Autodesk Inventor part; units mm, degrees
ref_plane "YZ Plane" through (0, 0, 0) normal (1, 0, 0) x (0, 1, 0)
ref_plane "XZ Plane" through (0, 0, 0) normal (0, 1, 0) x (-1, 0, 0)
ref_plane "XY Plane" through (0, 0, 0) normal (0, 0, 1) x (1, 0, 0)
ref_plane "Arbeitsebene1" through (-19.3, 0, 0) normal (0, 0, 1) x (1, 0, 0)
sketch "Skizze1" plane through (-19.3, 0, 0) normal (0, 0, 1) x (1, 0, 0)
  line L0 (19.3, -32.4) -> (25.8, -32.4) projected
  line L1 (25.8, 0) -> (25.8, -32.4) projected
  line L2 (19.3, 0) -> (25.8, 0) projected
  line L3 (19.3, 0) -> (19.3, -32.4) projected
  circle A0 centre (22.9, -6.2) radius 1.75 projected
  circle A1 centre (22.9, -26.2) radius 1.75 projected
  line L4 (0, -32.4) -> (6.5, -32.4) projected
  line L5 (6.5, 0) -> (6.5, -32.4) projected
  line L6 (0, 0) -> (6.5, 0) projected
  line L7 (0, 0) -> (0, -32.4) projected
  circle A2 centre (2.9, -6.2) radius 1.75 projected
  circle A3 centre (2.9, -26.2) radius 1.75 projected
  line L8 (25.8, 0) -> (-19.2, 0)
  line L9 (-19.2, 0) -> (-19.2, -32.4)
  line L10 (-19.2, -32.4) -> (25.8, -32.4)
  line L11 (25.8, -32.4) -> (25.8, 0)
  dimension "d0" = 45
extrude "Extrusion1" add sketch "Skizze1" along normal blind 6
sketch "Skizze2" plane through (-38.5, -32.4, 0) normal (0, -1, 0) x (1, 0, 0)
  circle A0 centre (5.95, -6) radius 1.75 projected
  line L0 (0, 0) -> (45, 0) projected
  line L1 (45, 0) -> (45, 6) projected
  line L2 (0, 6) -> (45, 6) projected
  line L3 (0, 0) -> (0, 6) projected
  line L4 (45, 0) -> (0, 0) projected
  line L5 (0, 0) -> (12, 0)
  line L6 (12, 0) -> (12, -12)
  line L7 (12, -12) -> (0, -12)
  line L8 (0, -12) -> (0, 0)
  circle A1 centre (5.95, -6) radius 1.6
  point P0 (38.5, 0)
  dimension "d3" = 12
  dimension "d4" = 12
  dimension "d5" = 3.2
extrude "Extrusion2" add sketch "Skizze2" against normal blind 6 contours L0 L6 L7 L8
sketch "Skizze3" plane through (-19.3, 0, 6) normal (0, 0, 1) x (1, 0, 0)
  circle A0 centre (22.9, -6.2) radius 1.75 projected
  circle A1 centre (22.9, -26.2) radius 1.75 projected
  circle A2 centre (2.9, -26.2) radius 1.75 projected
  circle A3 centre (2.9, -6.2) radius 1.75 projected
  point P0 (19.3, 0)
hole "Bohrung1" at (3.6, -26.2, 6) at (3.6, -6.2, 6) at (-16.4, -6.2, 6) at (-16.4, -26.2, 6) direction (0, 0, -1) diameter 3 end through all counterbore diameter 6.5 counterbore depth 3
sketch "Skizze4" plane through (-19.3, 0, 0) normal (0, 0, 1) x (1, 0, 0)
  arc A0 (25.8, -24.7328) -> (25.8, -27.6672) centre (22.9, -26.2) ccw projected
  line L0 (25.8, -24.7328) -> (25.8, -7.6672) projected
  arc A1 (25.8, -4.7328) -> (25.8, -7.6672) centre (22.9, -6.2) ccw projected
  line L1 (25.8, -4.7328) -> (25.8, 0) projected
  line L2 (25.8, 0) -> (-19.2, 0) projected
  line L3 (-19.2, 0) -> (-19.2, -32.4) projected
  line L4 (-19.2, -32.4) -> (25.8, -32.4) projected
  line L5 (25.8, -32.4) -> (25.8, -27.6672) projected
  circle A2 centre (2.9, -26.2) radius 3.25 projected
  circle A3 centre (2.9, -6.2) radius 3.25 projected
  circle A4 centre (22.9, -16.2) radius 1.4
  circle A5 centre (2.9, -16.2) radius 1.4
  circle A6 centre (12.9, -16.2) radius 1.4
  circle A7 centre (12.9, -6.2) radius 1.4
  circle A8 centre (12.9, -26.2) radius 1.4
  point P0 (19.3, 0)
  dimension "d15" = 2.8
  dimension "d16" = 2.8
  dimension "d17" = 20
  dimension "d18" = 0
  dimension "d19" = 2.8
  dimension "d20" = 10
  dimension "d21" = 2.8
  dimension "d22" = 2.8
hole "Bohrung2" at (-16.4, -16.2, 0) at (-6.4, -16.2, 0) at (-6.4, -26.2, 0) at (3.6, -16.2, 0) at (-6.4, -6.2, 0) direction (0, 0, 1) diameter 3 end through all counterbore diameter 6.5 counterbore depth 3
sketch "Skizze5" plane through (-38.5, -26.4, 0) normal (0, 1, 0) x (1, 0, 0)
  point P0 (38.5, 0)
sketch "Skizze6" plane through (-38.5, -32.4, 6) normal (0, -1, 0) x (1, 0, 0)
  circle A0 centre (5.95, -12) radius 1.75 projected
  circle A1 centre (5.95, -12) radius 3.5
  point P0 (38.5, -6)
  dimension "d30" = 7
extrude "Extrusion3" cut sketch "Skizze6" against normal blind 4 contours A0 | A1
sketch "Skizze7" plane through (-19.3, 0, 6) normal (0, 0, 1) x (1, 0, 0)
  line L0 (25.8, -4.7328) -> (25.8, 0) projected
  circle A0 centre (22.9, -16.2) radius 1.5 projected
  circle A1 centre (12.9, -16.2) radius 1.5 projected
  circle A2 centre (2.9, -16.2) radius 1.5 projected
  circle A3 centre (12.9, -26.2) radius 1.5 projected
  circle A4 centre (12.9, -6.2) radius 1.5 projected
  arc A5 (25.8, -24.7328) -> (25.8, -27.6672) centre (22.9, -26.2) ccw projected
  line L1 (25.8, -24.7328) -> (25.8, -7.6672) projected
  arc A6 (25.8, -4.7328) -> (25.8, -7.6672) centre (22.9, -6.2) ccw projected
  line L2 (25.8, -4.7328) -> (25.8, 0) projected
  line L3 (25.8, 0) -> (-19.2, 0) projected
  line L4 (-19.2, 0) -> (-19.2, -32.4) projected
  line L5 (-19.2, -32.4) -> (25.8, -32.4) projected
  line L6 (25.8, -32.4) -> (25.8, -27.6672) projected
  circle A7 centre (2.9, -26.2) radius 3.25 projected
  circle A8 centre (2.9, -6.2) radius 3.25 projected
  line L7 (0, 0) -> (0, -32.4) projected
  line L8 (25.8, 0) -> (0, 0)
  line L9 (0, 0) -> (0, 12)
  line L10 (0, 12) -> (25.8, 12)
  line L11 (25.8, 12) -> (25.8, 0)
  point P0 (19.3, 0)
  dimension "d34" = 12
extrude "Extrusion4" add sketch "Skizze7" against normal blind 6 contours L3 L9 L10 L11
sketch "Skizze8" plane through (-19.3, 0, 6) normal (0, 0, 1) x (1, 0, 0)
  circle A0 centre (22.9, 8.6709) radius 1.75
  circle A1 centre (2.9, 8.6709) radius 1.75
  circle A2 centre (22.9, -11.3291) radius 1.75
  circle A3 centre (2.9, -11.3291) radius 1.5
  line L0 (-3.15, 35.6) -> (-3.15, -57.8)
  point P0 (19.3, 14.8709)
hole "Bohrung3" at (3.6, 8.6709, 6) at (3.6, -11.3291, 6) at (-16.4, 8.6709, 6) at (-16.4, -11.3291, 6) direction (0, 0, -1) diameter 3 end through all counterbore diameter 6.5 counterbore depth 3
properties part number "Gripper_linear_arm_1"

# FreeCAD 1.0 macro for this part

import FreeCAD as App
import Part
import Sketcher
from FreeCAD import Vector

doc = App.newDocument("Part")
body = doc.addObject("PartDesign::Body", "Body")

# Sketch on XY plane
sketch1 = body.newObject("Sketcher::SketchObject", "Sketch")
sketch1.AttachmentSupport = (doc.getObject("XY_Plane"), [""])
sketch1.MapMode = "FlatFace"
sketch1.addGeometry([
    Part.LineSegment(Vector(6.5, 0, 0), Vector(-38.5, 0, 0)),  # 0
    Part.LineSegment(Vector(-38.5, 0, 0), Vector(-38.5, -32.4, 0)),  # 1
    Part.LineSegment(Vector(-38.5, -32.4, 0), Vector(6.5, -32.4, 0)),  # 2
    Part.LineSegment(Vector(6.5, -32.4, 0), Vector(6.5, 0, 0)),  # 3
    Part.Circle(Vector(3.6, -26.2, 0), Vector(0, 0, 1), 1.8),  # 4
    Part.Circle(Vector(3.6, -6.2, 0), Vector(0, 0, 1), 1.8),  # 5
    Part.Circle(Vector(-16.4, -6.2, 0), Vector(0, 0, 1), 1.8),  # 6
    Part.Circle(Vector(-16.4, -26.2, 0), Vector(0, 0, 1), 1.8),  # 7
], False)
sketch1.addConstraint([
    Sketcher.Constraint("Coincident", 0, 2, 1, 1),
    Sketcher.Constraint("Coincident", 1, 2, 2, 1),
    Sketcher.Constraint("Coincident", 2, 2, 3, 1),
    Sketcher.Constraint("Coincident", 3, 2, 0, 1),
    Sketcher.Constraint("Horizontal", 0),
    Sketcher.Constraint("Vertical", 1),
    Sketcher.Constraint("Horizontal", 2),
    Sketcher.Constraint("Vertical", 3),
    Sketcher.Constraint("Equal", 4, 5),
    Sketcher.Constraint("Equal", 5, 6),
    Sketcher.Constraint("Equal", 6, 7),
    Sketcher.Constraint("PointOnObject", 0, 2, -1),
    Sketcher.Constraint("Horizontal", 5, 3, 6, 3),
    Sketcher.Constraint("Horizontal", 4, 3, 7, 3),
    Sketcher.Constraint("Vertical", 4, 3, 5, 3),
    Sketcher.Constraint("Vertical", 6, 3, 7, 3),
    Sketcher.Constraint("DistanceX", 0, 2, 0, 1, 45.0),
    Sketcher.Constraint("Diameter", 4, 3.5),
    Sketcher.Constraint("DistanceY", 1, 2, 1, 1, 32.4),
    Sketcher.Constraint("DistanceY", 4, 3, 5, 3, 20.0),
    Sketcher.Constraint("DistanceX", 6, 3, 5, 3, 20.0),
    Sketcher.Constraint("DistanceX", -1, 1, 4, 3, 3.6),
    Sketcher.Constraint("DistanceY", 4, 3, -1, 1, 26.2),
    Sketcher.Constraint("DistanceX", 0, 2, -1, 1, 38.5),
])
pad1 = body.newObject("PartDesign::Pad", "Pad")
pad1.Profile = sketch1
pad1.Length = 6

# Sketch on XZ plane
sketch2 = body.newObject("Sketcher::SketchObject", "Sketch001")
sketch2.AttachmentSupport = (doc.getObject("XZ_Plane"), [""])
sketch2.MapMode = "FlatFace"
sketch2.AttachmentOffset = App.Placement(Vector(0, 0, 32.4), App.Rotation())
sketch2.addGeometry([
    Part.LineSegment(Vector(-26.5, 0, 0), Vector(-38.5, 0, 0)),  # 0
    Part.LineSegment(Vector(-38.5, 0, 0), Vector(-38.5, -12, 0)),  # 1
    Part.LineSegment(Vector(-38.5, -12, 0), Vector(-26.5, -12, 0)),  # 2
    Part.LineSegment(Vector(-26.5, -12, 0), Vector(-26.5, 0, 0)),  # 3
    Part.Circle(Vector(-32.5, -6, 0), Vector(0, 0, 1), 1.8),  # 4
], False)
sketch2.addConstraint([
    Sketcher.Constraint("Coincident", 0, 2, 1, 1),
    Sketcher.Constraint("Coincident", 1, 2, 2, 1),
    Sketcher.Constraint("Coincident", 2, 2, 3, 1),
    Sketcher.Constraint("Coincident", 3, 2, 0, 1),
    Sketcher.Constraint("Horizontal", 0),
    Sketcher.Constraint("Vertical", 1),
    Sketcher.Constraint("Horizontal", 2),
    Sketcher.Constraint("Vertical", 3),
    Sketcher.Constraint("PointOnObject", 0, 2, -1),
    Sketcher.Constraint("Equal", 2, 1),
    Sketcher.Constraint("DistanceX", 0, 2, 0, 1, 12.0),
    Sketcher.Constraint("Diameter", 4, 3.5),
    Sketcher.Constraint("DistanceY", 4, 3, -1, 1, 6.0),
    Sketcher.Constraint("DistanceX", 0, 2, -1, 1, 38.5),
    Sketcher.Constraint("DistanceX", 4, 3, -1, 1, 32.55),
])
pad2 = body.newObject("PartDesign::Pad", "Pad001")
pad2.Profile = sketch2
pad2.Length = 6
pad2.Reversed = True

# Sketch on XY plane
sketch3 = body.newObject("Sketcher::SketchObject", "Sketch002")
sketch3.AttachmentSupport = (doc.getObject("XY_Plane"), [""])
sketch3.MapMode = "FlatFace"
sketch3.AttachmentOffset = App.Placement(Vector(0, 0, 6), App.Rotation())
sketch3.addGeometry([
    Part.Circle(Vector(3.6, -26.2, 0), Vector(0, 0, 1), 1.5),
    Part.Circle(Vector(3.6, -6.2, 0), Vector(0, 0, 1), 1.5),
    Part.Circle(Vector(-16.4, -6.2, 0), Vector(0, 0, 1), 1.5),
    Part.Circle(Vector(-16.4, -26.2, 0), Vector(0, 0, 1), 1.5),
], False)
sketch3.addConstraint([
    Sketcher.Constraint("Equal", 0, 1),
    Sketcher.Constraint("Equal", 1, 2),
    Sketcher.Constraint("Equal", 2, 3),
    Sketcher.Constraint("Horizontal", 1, 3, 2, 3),
    Sketcher.Constraint("Horizontal", 0, 3, 3, 3),
    Sketcher.Constraint("Vertical", 0, 3, 1, 3),
    Sketcher.Constraint("Vertical", 2, 3, 3, 3),
    Sketcher.Constraint("Diameter", 0, 3.0),
    Sketcher.Constraint("DistanceY", 0, 3, 1, 3, 20.0),
    Sketcher.Constraint("DistanceX", 2, 3, 1, 3, 20.0),
    Sketcher.Constraint("DistanceX", -1, 1, 0, 3, 3.6),
    Sketcher.Constraint("DistanceY", 0, 3, -1, 1, 26.2),
])
doc.recompute()
hole = body.newObject("PartDesign::Hole", "Hole")
hole.Profile = sketch3
hole.ThreadType = "None"
hole.Diameter = 3
hole.DepthType = "ThroughAll"
hole.HoleCutType = "Counterbore"
hole.HoleCutDiameter = 6.5
hole.HoleCutDepth = 3

# Sketch on XY plane
sketch4 = body.newObject("Sketcher::SketchObject", "Sketch003")
sketch4.AttachmentSupport = (doc.getObject("XY_Plane"), [""])
sketch4.MapMode = "FlatFace"
sketch4.addGeometry([
    Part.Circle(Vector(-16.4, -16.2, 0), Vector(0, 0, 1), 1.5),  # 0
    Part.Circle(Vector(-6.4, -16.2, 0), Vector(0, 0, 1), 1.5),  # 1
    Part.Circle(Vector(-6.4, -26.2, 0), Vector(0, 0, 1), 1.5),  # 2
    Part.Circle(Vector(3.6, -16.2, 0), Vector(0, 0, 1), 1.5),  # 3
    Part.Circle(Vector(-6.4, -6.2, 0), Vector(0, 0, 1), 1.5),  # 4
], False)
sketch4.addConstraint([
    Sketcher.Constraint("Equal", 0, 1),
    Sketcher.Constraint("Equal", 1, 2),
    Sketcher.Constraint("Equal", 2, 3),
    Sketcher.Constraint("Equal", 3, 4),
    Sketcher.Constraint("Horizontal", 0, 3, 1, 3),
    Sketcher.Constraint("Horizontal", 1, 3, 3, 3),
    Sketcher.Constraint("Vertical", 1, 3, 2, 3),
    Sketcher.Constraint("Vertical", 2, 3, 4, 3),
    Sketcher.Constraint("Diameter", 0, 3.0),
    Sketcher.Constraint("DistanceX", 0, 3, 1, 3, 10.0),
    Sketcher.Constraint("DistanceY", 2, 3, 1, 3, 10.0),
    Sketcher.Constraint("DistanceX", 1, 3, 3, 3, 10.0),
    Sketcher.Constraint("DistanceY", 1, 3, 4, 3, 10.0),
    Sketcher.Constraint("DistanceX", 0, 3, -1, 1, 16.4),
    Sketcher.Constraint("DistanceY", 0, 3, -1, 1, 16.2),
])
doc.recompute()
hole2 = body.newObject("PartDesign::Hole", "Hole001")
hole2.Profile = sketch4
hole2.ThreadType = "None"
hole2.Diameter = 3
hole2.DepthType = "ThroughAll"
hole2.HoleCutType = "Counterbore"
hole2.HoleCutDiameter = 6.5
hole2.HoleCutDepth = 3
hole2.Reversed = True

# Sketch on XZ plane
sketch5 = body.newObject("Sketcher::SketchObject", "Sketch004")
sketch5.AttachmentSupport = (doc.getObject("XZ_Plane"), [""])
sketch5.MapMode = "FlatFace"
sketch5.AttachmentOffset = App.Placement(Vector(0, 0, 32.4), App.Rotation())
sketch5.addGeometry(Part.Circle(Vector(-32.5, -6, 0), Vector(0, 0, 1), 3.5), False)
sketch5.addConstraint([
    Sketcher.Constraint("Diameter", 0, 7.0),
    Sketcher.Constraint("DistanceY", 0, 3, -1, 1, 6.0),
    Sketcher.Constraint("DistanceX", 0, 3, -1, 1, 32.55),
])
pocket1 = body.newObject("PartDesign::Pocket", "Pocket")
pocket1.Profile = sketch5
pocket1.Length = 4

# Sketch on XY plane
sketch6 = body.newObject("Sketcher::SketchObject", "Sketch005")
sketch6.AttachmentSupport = (doc.getObject("XY_Plane"), [""])
sketch6.MapMode = "FlatFace"
sketch6.AttachmentOffset = App.Placement(Vector(0, 0, 6), App.Rotation())
sketch6.addGeometry([
    Part.LineSegment(Vector(-19, 0, 0), Vector(6, 0, 0)),
    Part.LineSegment(Vector(6, 0, 0), Vector(6, 12, 0)),
    Part.LineSegment(Vector(6, 12, 0), Vector(-19, 12, 0)),
    Part.LineSegment(Vector(-19, 12, 0), Vector(-19, 0, 0)),
], False)
sketch6.addConstraint([
    Sketcher.Constraint("Coincident", 0, 2, 1, 1),
    Sketcher.Constraint("Coincident", 1, 2, 2, 1),
    Sketcher.Constraint("Coincident", 2, 2, 3, 1),
    Sketcher.Constraint("Coincident", 3, 2, 0, 1),
    Sketcher.Constraint("Horizontal", 0),
    Sketcher.Constraint("Vertical", 1),
    Sketcher.Constraint("Horizontal", 2),
    Sketcher.Constraint("Vertical", 3),
    Sketcher.Constraint("PointOnObject", 0, 2, -1),
    Sketcher.Constraint("DistanceY", 1, 1, 1, 2, 12.0),
    Sketcher.Constraint("DistanceX", 0, 1, 0, 2, 25.8),
    Sketcher.Constraint("DistanceX", -1, 1, 0, 2, 6.5),
])
pad3 = body.newObject("PartDesign::Pad", "Pad002")
pad3.Profile = sketch6
pad3.Length = 6
pad3.Reversed = True

# Sketch on XY plane
sketch7 = body.newObject("Sketcher::SketchObject", "Sketch006")
sketch7.AttachmentSupport = (doc.getObject("XY_Plane"), [""])
sketch7.MapMode = "FlatFace"
sketch7.AttachmentOffset = App.Placement(Vector(0, 0, 6), App.Rotation())
sketch7.addGeometry([
    Part.Circle(Vector(3.6, 8.7, 0), Vector(0, 0, 1), 1.5),
    Part.Circle(Vector(3.6, -11.3, 0), Vector(0, 0, 1), 1.5),
    Part.Circle(Vector(-16.4, 8.7, 0), Vector(0, 0, 1), 1.5),
    Part.Circle(Vector(-16.4, -11.3, 0), Vector(0, 0, 1), 1.5),
], False)
sketch7.addConstraint([
    Sketcher.Constraint("Equal", 0, 1),
    Sketcher.Constraint("Equal", 1, 2),
    Sketcher.Constraint("Equal", 2, 3),
    Sketcher.Constraint("Horizontal", 0, 3, 2, 3),
    Sketcher.Constraint("Horizontal", 1, 3, 3, 3),
    Sketcher.Constraint("Vertical", 0, 3, 1, 3),
    Sketcher.Constraint("Vertical", 2, 3, 3, 3),
    Sketcher.Constraint("Diameter", 0, 3.0),
    Sketcher.Constraint("DistanceY", 1, 3, 0, 3, 20.0),
    Sketcher.Constraint("DistanceX", 2, 3, 0, 3, 20.0),
    Sketcher.Constraint("DistanceX", -1, 1, 0, 3, 3.6),
    Sketcher.Constraint("DistanceY", -1, 1, 0, 3, 8.671),
])
doc.recompute()
hole3 = body.newObject("PartDesign::Hole", "Hole002")
hole3.Profile = sketch7
hole3.ThreadType = "None"
hole3.Diameter = 3
hole3.DepthType = "ThroughAll"
hole3.HoleCutType = "Counterbore"
hole3.HoleCutDiameter = 6.5
hole3.HoleCutDepth = 3

doc.recompute()
